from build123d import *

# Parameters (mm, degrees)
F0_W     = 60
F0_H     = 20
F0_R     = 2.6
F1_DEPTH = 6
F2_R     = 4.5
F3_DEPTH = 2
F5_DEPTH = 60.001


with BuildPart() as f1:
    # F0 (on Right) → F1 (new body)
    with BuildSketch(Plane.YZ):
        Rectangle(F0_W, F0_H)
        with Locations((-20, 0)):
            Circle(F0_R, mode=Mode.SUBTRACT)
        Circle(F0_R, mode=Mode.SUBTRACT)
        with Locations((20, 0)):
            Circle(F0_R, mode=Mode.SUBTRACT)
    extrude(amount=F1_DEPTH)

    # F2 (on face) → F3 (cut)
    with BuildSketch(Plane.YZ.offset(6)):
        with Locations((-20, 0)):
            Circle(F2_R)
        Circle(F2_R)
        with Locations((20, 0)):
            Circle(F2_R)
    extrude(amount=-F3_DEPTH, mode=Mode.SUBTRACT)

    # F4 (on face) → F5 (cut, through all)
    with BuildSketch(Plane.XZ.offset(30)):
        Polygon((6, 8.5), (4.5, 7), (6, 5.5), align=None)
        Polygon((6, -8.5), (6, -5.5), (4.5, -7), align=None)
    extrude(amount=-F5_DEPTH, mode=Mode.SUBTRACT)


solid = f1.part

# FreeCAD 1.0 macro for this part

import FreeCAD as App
import Part
import Sketcher
from FreeCAD import Vector


def add_polygon(sketch, points):
    """Adds a closed chain of lines whose ends are joined by coincident constraints."""
    first, n = sketch.GeometryCount, len(points)
    for a, b in zip(points, points[1:] + points[:1]):
        sketch.addGeometry(Part.LineSegment(App.Vector(*a, 0), App.Vector(*b, 0)), False)
    for i in range(n):
        sketch.addConstraint(Sketcher.Constraint("Coincident", first + i, 2, first + (i + 1) % n, 1))

doc = App.newDocument("Part")
body = doc.addObject("PartDesign::Body", "Body")

sketch1 = body.newObject("Sketcher::SketchObject", "Sketch")
sketch1.AttachmentSupport = (doc.getObject("YZ_Plane"), [""])
sketch1.MapMode = "FlatFace"
add_polygon(sketch1, [(-30, 10), (-30, -10), (30, -10), (30, 10)])
sketch1.addGeometry(Part.Circle(Vector(-20, 0, 0), Vector(0, 0, 1), 2.6), False)
sketch1.addGeometry(Part.Circle(Vector(0, 0, 0), Vector(0, 0, 1), 2.6), False)
sketch1.addGeometry(Part.Circle(Vector(20, 0, 0), Vector(0, 0, 1), 2.6), False)
sketch1.addConstraint(Sketcher.Constraint("Vertical", 0))
sketch1.addConstraint(Sketcher.Constraint("Horizontal", 1))
sketch1.addConstraint(Sketcher.Constraint("Vertical", 2))
sketch1.addConstraint(Sketcher.Constraint("Horizontal", 3))
sketch1.addConstraint(Sketcher.Constraint("Coincident", 5, 3, -1, 1))
sketch1.addConstraint(Sketcher.Constraint("Equal", 4, 5))
sketch1.addConstraint(Sketcher.Constraint("Equal", 5, 6))
sketch1.addConstraint(Sketcher.Constraint("Symmetric", 4, 3, 6, 3, -1, 1))
sketch1.addConstraint(Sketcher.Constraint("Symmetric", 0, 2, 2, 2, -1, 1))
sketch1.addConstraint(Sketcher.Constraint("PointOnObject", 4, 3, -1))
sketch1.addConstraint(Sketcher.Constraint("Diameter", 4, 5.2))
sketch1.addConstraint(Sketcher.Constraint("DistanceX", 1, 1, 1, 2, 60.0))
sketch1.addConstraint(Sketcher.Constraint("DistanceY", 0, 2, 0, 1, 20.0))
sketch1.addConstraint(Sketcher.Constraint("DistanceX", 4, 3, -1, 1, 20.0))
pad1 = body.newObject("PartDesign::Pad", "Pad")
pad1.Profile = sketch1
pad1.Length = 6

sketch2 = body.newObject("Sketcher::SketchObject", "Sketch001")
sketch2.AttachmentSupport = (doc.getObject("YZ_Plane"), [""])
sketch2.MapMode = "FlatFace"
sketch2.AttachmentOffset = App.Placement(Vector(0, 0, 6), App.Rotation())
sketch2.addGeometry(Part.Circle(Vector(-20, 0, 0), Vector(0, 0, 1), 4.5), False)
sketch2.addGeometry(Part.Circle(Vector(0, 0, 0), Vector(0, 0, 1), 4.5), False)
sketch2.addGeometry(Part.Circle(Vector(20, 0, 0), Vector(0, 0, 1), 4.5), False)
sketch2.addConstraint(Sketcher.Constraint("Coincident", 1, 3, -1, 1))
sketch2.addConstraint(Sketcher.Constraint("Equal", 0, 1))
sketch2.addConstraint(Sketcher.Constraint("Equal", 1, 2))
sketch2.addConstraint(Sketcher.Constraint("Symmetric", 0, 3, 2, 3, -1, 1))
sketch2.addConstraint(Sketcher.Constraint("PointOnObject", 0, 3, -1))
sketch2.addConstraint(Sketcher.Constraint("Diameter", 0, 9.0))
sketch2.addConstraint(Sketcher.Constraint("DistanceX", 0, 3, -1, 1, 20.0))
pocket1 = body.newObject("PartDesign::Pocket", "Pocket")
pocket1.Profile = sketch2
pocket1.Length = 2

sketch3 = body.newObject("Sketcher::SketchObject", "Sketch002")
sketch3.AttachmentSupport = (doc.getObject("XZ_Plane"), [""])
sketch3.MapMode = "FlatFace"
sketch3.AttachmentOffset = App.Placement(Vector(0, 0, 30), App.Rotation())
add_polygon(sketch3, [(6, 8.5), (4.5, 7), (6, 5.5)])
add_polygon(sketch3, [(6, -8.5), (6, -5.5), (4.5, -7)])
sketch3.addConstraint(Sketcher.Constraint("Vertical", 2))
sketch3.addConstraint(Sketcher.Constraint("Vertical", 3))
sketch3.addConstraint(Sketcher.Constraint("Symmetric", 1, 2, 3, 2, -1))
sketch3.addConstraint(Sketcher.Constraint("Symmetric", 0, 2, 4, 2, -1))
sketch3.addConstraint(Sketcher.Constraint("Perpendicular", 0, 1))
sketch3.addConstraint(Sketcher.Constraint("Perpendicular", 1, 4))
sketch3.addConstraint(Sketcher.Constraint("Perpendicular", 4, 5))
sketch3.addConstraint(Sketcher.Constraint("DistanceY", 2, 1, 2, 2, 3.0))
sketch3.addConstraint(Sketcher.Constraint("DistanceY", -1, 1, 0, 2, 7.0))
sketch3.addConstraint(Sketcher.Constraint("DistanceX", -1, 1, 1, 2, 6.0))
pocket2 = body.newObject("PartDesign::Pocket", "Pocket001")
pocket2.Profile = sketch3
pocket2.Type = "ThroughAll"

doc.recompute()
